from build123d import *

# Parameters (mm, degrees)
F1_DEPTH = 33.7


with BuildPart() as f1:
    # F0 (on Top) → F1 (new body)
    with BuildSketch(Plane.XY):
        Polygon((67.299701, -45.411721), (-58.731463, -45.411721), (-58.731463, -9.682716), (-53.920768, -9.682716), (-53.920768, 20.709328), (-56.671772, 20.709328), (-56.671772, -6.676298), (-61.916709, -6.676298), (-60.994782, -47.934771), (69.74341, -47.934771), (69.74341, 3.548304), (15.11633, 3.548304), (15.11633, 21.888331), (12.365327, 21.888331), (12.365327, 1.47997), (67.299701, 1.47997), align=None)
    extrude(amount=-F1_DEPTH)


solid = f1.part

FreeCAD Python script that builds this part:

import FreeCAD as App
import Part
import Sketcher
from FreeCAD import Vector

doc = App.newDocument("Part")
body = doc.addObject("PartDesign::Body", "Body")

sketch1 = doc.addObject("Sketcher::SketchObject", "Sketch")
body.addObject(sketch1)
sketch1.AttachmentSupport = (doc.XY_Plane, [""])
sketch1.MapMode = "FlatFace"
sketch1.addGeometry([
    Part.LineSegment(Vector(67.299701, -45.411721, 0), Vector(-58.731463, -45.411721, 0)),
    Part.LineSegment(Vector(-58.731463, -45.411721, 0), Vector(-58.731463, -9.682716, 0)),
    Part.LineSegment(Vector(-58.731463, -9.682716, 0), Vector(-53.920768, -9.682716, 0)),
    Part.LineSegment(Vector(-53.920768, -9.682716, 0), Vector(-53.920768, 20.709328, 0)),
    Part.LineSegment(Vector(-53.920768, 20.709328, 0), Vector(-56.671772, 20.709328, 0)),
    Part.LineSegment(Vector(-56.671772, 20.709328, 0), Vector(-56.671772, -6.676298, 0)),
    Part.LineSegment(Vector(-56.671772, -6.676298, 0), Vector(-61.916709, -6.676298, 0)),
    Part.LineSegment(Vector(-61.916709, -6.676298, 0), Vector(-60.994782, -47.934771, 0)),
    Part.LineSegment(Vector(-60.994782, -47.934771, 0), Vector(69.74341, -47.934771, 0)),
    Part.LineSegment(Vector(69.74341, -47.934771, 0), Vector(69.74341, 3.548304, 0)),
    Part.LineSegment(Vector(69.74341, 3.548304, 0), Vector(15.11633, 3.548304, 0)),
    Part.LineSegment(Vector(15.11633, 3.548304, 0), Vector(15.11633, 21.888331, 0)),
    Part.LineSegment(Vector(15.11633, 21.888331, 0), Vector(12.365327, 21.888331, 0)),
    Part.LineSegment(Vector(12.365327, 21.888331, 0), Vector(12.365327, 1.47997, 0)),
    Part.LineSegment(Vector(12.365327, 1.47997, 0), Vector(67.299701, 1.47997, 0)),
    Part.LineSegment(Vector(67.299701, 1.47997, 0), Vector(67.299701, -45.411721, 0)),
], False)
sketch1.addConstraint([
    Sketcher.Constraint("Coincident", 0, 2, 1, 1),
    Sketcher.Constraint("Coincident", 1, 2, 2, 1),
    Sketcher.Constraint("Coincident", 2, 2, 3, 1),
    Sketcher.Constraint("Coincident", 3, 2, 4, 1),
    Sketcher.Constraint("Coincident", 4, 2, 5, 1),
    Sketcher.Constraint("Coincident", 5, 2, 6, 1),
    Sketcher.Constraint("Coincident", 6, 2, 7, 1),
    Sketcher.Constraint("Coincident", 7, 2, 8, 1),
    Sketcher.Constraint("Coincident", 8, 2, 9, 1),
    Sketcher.Constraint("Coincident", 9, 2, 10, 1),
    Sketcher.Constraint("Coincident", 10, 2, 11, 1),
    Sketcher.Constraint("Coincident", 11, 2, 12, 1),
    Sketcher.Constraint("Coincident", 12, 2, 13, 1),
    Sketcher.Constraint("Coincident", 13, 2, 14, 1),
    Sketcher.Constraint("Coincident", 14, 2, 15, 1),
    Sketcher.Constraint("Coincident", 15, 2, 0, 1),
    Sketcher.Constraint("Horizontal", 0),
    Sketcher.Constraint("Vertical", 1),
    Sketcher.Constraint("Horizontal", 2),
    Sketcher.Constraint("Vertical", 3),
    Sketcher.Constraint("Horizontal", 4),
    Sketcher.Constraint("Vertical", 5),
    Sketcher.Constraint("Horizontal", 6),
    Sketcher.Constraint("Horizontal", 8),
    Sketcher.Constraint("Vertical", 9),
    Sketcher.Constraint("Horizontal", 10),
    Sketcher.Constraint("Vertical", 11),
    Sketcher.Constraint("Horizontal", 12),
    Sketcher.Constraint("Vertical", 13),
    Sketcher.Constraint("Horizontal", 14),
    Sketcher.Constraint("Vertical", 15),
    Sketcher.Constraint("Equal", 4, 12),
    Sketcher.Constraint("DistanceX", 8, 1, 8, 2, 130.738192),
    Sketcher.Constraint("DistanceX", 10, 2, 10, 1, 54.62708),
    Sketcher.Constraint("DistanceY", 13, 2, 13, 1, 20.408361),
    Sketcher.Constraint("DistanceY", 15, 2, 15, 1, 46.891691),
    Sketcher.Constraint("DistanceX", -1, 1, 14, 2, 67.299701),
    Sketcher.Constraint("DistanceX", 2, 2, 10, 2, 69.037098),
    Sketcher.Constraint("DistanceX", 5, 2, 10, 2, 71.788102),
    Sketcher.Constraint("DistanceX", 0, 2, 0, 1, 126.031164),
    Sketcher.Constraint("DistanceX", 2, 1, 2, 2, 4.810695),
    Sketcher.Constraint("DistanceX", 6, 2, 6, 1, 5.244937),
    Sketcher.Constraint("DistanceY", 1, 1, 1, 2, 35.729005),
    Sketcher.Constraint("DistanceY", 3, 1, 3, 2, 30.392044),
    Sketcher.Constraint("DistanceY", 5, 2, 5, 1, 27.385626),
    Sketcher.Constraint("DistanceY", 9, 1, 9, 2, 51.483075),
    Sketcher.Constraint("DistanceY", 11, 1, 11, 2, 18.340027),
    Sketcher.Constraint("DistanceY", 0, 2, -1, 1, 45.411721),
])
pad1 = doc.addObject("PartDesign::Pad", "Pad")
body.addObject(pad1)
pad1.Profile = sketch1
pad1.Length = 33.7
pad1.Reversed = True

doc.recompute()
